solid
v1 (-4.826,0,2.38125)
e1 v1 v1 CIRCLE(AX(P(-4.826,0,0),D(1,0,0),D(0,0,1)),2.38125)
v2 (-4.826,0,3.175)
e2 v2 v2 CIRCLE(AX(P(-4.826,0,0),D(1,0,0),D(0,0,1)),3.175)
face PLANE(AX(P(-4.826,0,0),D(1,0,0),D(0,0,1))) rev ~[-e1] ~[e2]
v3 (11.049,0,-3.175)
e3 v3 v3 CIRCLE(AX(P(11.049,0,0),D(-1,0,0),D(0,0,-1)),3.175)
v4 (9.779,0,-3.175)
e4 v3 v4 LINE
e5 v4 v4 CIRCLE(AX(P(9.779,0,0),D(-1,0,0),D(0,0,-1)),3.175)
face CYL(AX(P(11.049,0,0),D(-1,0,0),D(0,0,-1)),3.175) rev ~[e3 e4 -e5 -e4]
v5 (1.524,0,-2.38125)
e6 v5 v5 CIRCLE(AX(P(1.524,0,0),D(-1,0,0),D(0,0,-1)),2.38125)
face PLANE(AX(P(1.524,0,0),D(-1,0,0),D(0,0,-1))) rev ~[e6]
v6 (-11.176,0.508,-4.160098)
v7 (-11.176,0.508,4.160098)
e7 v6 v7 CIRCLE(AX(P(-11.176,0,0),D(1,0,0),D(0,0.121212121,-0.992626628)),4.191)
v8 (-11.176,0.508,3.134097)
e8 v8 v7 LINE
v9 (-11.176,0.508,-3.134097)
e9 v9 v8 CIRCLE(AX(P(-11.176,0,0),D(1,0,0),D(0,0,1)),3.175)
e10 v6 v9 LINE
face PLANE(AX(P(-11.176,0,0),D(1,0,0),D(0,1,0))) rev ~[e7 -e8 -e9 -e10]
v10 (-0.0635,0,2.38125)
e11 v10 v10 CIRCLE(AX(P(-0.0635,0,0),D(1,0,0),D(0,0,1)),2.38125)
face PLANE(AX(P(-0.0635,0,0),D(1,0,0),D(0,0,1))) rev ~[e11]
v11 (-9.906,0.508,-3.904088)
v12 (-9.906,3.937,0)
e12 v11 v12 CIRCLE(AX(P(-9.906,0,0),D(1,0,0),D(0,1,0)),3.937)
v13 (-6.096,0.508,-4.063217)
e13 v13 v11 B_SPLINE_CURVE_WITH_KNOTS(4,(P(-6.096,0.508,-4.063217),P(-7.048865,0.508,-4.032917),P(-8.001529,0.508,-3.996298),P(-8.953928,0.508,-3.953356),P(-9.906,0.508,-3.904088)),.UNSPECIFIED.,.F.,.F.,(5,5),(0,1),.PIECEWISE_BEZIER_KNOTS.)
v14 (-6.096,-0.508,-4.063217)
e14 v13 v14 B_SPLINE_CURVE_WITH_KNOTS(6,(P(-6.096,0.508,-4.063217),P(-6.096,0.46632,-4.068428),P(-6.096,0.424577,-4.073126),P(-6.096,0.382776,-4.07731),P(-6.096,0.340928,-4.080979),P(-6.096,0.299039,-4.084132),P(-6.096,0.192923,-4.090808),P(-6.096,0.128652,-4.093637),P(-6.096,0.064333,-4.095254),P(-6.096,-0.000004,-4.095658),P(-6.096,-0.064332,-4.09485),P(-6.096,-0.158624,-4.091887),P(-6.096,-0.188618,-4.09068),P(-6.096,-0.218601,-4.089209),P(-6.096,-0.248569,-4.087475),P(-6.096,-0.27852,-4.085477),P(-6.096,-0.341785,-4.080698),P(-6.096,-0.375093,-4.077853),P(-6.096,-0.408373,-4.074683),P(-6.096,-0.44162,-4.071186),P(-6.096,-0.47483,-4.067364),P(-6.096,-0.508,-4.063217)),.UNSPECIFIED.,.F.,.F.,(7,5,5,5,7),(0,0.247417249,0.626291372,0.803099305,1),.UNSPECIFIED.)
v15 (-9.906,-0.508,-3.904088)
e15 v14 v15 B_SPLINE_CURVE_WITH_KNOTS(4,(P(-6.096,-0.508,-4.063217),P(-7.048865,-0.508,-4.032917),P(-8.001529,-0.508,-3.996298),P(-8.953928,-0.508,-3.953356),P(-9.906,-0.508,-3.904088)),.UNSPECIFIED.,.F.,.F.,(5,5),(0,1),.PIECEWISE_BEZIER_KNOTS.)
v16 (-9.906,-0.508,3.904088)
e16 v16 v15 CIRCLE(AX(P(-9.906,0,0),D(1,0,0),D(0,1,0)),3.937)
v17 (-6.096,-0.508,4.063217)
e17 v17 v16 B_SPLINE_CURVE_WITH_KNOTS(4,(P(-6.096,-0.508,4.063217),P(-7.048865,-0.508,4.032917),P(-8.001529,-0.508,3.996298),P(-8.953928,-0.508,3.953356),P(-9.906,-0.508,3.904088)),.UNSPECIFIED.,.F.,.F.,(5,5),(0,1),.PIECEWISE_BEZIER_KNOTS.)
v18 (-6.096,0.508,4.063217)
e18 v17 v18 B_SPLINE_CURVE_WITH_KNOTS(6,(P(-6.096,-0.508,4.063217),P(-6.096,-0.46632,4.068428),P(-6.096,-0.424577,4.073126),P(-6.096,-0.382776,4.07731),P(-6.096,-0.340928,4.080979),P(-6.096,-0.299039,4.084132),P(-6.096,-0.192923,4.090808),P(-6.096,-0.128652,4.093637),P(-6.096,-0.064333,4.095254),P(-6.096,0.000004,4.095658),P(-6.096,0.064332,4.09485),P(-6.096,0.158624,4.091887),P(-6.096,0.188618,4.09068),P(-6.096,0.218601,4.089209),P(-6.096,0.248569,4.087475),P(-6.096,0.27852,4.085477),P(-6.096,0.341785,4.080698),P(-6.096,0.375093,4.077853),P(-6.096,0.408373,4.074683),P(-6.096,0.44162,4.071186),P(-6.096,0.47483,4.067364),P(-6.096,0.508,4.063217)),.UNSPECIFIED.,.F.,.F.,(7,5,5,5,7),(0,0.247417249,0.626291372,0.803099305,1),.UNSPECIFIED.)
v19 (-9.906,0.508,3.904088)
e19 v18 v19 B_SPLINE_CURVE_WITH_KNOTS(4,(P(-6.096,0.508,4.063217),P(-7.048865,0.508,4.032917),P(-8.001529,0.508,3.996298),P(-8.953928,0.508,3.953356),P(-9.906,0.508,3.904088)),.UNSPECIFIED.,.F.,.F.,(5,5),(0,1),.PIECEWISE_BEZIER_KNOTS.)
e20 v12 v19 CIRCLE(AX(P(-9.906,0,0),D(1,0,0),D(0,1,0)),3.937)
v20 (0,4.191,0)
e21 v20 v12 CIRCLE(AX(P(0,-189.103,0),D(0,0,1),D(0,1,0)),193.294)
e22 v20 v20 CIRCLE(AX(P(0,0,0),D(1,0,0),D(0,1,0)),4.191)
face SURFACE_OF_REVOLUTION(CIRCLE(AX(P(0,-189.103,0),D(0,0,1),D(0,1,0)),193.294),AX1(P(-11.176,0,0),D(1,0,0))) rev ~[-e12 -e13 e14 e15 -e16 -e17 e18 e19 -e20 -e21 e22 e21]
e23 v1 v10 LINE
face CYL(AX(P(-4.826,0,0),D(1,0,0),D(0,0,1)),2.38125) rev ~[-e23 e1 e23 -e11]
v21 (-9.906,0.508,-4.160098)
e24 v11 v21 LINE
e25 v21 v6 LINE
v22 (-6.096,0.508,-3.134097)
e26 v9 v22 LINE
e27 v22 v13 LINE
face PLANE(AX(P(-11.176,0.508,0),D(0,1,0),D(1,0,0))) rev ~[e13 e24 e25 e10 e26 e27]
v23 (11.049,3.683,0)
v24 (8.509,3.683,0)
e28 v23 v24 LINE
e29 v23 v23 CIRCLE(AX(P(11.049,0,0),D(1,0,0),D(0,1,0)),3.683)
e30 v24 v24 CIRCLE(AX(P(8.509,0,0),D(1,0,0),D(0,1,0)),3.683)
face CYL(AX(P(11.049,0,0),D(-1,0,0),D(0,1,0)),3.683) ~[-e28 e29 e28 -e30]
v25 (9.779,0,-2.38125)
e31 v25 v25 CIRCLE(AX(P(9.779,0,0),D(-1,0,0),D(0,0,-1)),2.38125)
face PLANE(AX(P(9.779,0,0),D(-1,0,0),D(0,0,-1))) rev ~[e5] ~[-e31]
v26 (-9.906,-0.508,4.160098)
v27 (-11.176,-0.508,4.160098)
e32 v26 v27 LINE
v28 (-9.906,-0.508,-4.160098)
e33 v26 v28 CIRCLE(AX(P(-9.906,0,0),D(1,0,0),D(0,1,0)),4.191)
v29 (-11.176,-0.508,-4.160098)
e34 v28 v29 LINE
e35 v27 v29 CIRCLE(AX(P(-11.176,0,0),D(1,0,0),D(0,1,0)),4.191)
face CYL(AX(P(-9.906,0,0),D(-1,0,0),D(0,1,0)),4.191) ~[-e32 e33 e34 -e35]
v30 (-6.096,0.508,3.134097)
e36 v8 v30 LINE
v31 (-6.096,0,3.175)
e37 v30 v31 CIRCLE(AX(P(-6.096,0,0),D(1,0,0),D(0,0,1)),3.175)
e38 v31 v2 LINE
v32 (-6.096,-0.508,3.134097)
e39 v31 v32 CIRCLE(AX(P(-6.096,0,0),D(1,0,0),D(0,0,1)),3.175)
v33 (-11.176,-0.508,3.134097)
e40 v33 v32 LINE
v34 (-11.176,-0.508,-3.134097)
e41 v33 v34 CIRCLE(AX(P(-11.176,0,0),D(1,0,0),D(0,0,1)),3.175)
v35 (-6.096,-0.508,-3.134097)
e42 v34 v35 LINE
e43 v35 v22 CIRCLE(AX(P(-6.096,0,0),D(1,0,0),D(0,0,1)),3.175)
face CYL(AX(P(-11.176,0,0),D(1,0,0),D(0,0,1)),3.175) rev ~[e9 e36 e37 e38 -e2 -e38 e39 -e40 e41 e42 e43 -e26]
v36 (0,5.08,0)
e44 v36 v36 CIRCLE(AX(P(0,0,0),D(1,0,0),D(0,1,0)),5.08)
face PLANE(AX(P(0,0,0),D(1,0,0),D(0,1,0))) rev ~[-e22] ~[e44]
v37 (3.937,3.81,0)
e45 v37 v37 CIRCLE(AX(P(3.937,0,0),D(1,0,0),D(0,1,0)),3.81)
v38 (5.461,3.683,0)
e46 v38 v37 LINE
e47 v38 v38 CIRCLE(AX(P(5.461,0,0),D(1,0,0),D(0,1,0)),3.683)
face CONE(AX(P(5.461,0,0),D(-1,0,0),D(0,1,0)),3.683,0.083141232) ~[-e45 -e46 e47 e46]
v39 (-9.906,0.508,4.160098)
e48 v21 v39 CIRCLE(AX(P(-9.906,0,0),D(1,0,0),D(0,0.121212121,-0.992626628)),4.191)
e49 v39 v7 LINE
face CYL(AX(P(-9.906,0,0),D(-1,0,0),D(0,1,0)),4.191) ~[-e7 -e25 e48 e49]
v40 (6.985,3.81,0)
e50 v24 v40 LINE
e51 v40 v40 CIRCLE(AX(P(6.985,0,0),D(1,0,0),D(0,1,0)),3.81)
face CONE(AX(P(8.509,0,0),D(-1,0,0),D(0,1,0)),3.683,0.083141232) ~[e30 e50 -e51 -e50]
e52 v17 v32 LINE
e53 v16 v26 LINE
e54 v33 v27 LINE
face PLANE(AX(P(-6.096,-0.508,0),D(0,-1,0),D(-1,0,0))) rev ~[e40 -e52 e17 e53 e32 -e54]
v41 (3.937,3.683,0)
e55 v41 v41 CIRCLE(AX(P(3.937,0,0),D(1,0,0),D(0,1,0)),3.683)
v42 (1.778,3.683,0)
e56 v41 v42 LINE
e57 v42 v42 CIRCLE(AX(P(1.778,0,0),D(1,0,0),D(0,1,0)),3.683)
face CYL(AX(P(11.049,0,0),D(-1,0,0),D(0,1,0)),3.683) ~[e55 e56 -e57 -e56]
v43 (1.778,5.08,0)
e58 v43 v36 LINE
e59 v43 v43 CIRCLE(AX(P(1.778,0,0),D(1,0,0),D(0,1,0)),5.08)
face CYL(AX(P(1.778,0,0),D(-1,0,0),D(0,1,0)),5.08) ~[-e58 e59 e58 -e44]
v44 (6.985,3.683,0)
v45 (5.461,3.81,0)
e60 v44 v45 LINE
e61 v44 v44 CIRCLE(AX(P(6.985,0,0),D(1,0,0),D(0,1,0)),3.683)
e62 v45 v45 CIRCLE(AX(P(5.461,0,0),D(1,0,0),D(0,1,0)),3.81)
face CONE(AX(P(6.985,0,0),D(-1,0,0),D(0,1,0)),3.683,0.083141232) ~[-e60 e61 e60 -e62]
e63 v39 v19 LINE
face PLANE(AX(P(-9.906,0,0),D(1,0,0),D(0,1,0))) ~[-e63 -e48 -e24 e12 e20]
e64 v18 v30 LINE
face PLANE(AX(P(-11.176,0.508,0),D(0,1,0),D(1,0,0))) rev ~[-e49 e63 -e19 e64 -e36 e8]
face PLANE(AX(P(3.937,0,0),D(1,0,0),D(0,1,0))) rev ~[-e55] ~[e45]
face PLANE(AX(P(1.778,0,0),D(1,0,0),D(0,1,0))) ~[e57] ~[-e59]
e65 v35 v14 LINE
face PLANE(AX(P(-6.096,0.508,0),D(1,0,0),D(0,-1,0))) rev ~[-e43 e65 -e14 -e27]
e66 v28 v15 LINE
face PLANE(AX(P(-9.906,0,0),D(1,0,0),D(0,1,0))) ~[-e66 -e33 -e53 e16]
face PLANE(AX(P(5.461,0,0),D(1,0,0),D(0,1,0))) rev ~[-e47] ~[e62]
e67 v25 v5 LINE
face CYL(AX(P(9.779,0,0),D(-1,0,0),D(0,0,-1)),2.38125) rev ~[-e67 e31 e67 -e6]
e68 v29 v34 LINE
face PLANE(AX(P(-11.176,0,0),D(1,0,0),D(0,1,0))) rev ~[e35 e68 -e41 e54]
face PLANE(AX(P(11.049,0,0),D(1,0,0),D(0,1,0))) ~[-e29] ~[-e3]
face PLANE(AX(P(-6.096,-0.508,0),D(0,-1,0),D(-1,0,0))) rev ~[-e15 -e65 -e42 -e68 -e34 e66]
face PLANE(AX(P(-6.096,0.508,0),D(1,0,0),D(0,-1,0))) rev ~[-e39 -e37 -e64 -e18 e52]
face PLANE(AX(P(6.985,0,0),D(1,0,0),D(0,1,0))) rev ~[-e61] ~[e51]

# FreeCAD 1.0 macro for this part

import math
import FreeCAD as App
import Part
import Sketcher
from FreeCAD import Vector
Q = App.Units.Quantity

doc = App.newDocument("Part")
body = doc.addObject("PartDesign::Body", "Body")

# Sketch on XY plane
sketch1 = body.newObject("Sketcher::SketchObject", "Sketch")
sketch1.AttachmentSupport = (doc.getObject("XY_Plane"), [""])
sketch1.MapMode = "FlatFace"
sketch1.addGeometry(Part.LineSegment(Vector(0, 5.08, 0), Vector(0, 4.191, 0)), False)
sketch1.addGeometry(Part.ArcOfCircle(Part.Circle(Vector(0, -189.103, 0), Vector(0, 0, 1), 193.294), math.radians(90), math.radians(92.937601)), False)
sketch1.addGeometry(Part.LineSegment(Vector(-9.906, 3.937, 0), Vector(-9.906, 4.191, 0)), False)
sketch1.addGeometry(Part.LineSegment(Vector(-9.906, 4.191, 0), Vector(-11.176, 4.191, 0)), False)
sketch1.addGeometry(Part.LineSegment(Vector(-11.176, 4.191, 0), Vector(-11.176, 0, 0)), False)
sketch1.addGeometry(Part.LineSegment(Vector(-11.176, 0, 0), Vector(11.049, 0, 0)), False)
sketch1.addGeometry(Part.LineSegment(Vector(11.049, 0, 0), Vector(11.049, 3.683, 0)), False)
sketch1.addGeometry(Part.LineSegment(Vector(11.049, 3.683, 0), Vector(8.509, 3.683, 0)), False)
sketch1.addGeometry(Part.LineSegment(Vector(8.509, 3.683, 0), Vector(6.985, 3.81, 0)), False)
sketch1.addGeometry(Part.LineSegment(Vector(6.985, 3.81, 0), Vector(6.985, 3.683, 0)), False)
sketch1.addGeometry(Part.LineSegment(Vector(6.985, 3.683, 0), Vector(5.461, 3.81, 0)), False)
sketch1.addGeometry(Part.LineSegment(Vector(5.461, 3.81, 0), Vector(5.461, 3.683, 0)), False)
sketch1.addGeometry(Part.LineSegment(Vector(5.461, 3.683, 0), Vector(3.937, 3.81, 0)), False)
sketch1.addGeometry(Part.LineSegment(Vector(3.937, 3.81, 0), Vector(3.937, 3.683, 0)), False)
sketch1.addGeometry(Part.LineSegment(Vector(3.937, 3.683, 0), Vector(1.778, 3.683, 0)), False)
sketch1.addGeometry(Part.LineSegment(Vector(1.778, 3.683, 0), Vector(1.778, 5.08, 0)), False)
sketch1.addGeometry(Part.LineSegment(Vector(1.778, 5.08, 0), Vector(0, 5.08, 0)), False)
sketch1.addConstraint(Sketcher.Constraint("Coincident", 0, 2, 1, 1))
sketch1.addConstraint(Sketcher.Constraint("Coincident", 1, 2, 2, 1))
sketch1.addConstraint(Sketcher.Constraint("Coincident", 2, 2, 3, 1))
sketch1.addConstraint(Sketcher.Constraint("Coincident", 3, 2, 4, 1))
sketch1.addConstraint(Sketcher.Constraint("Coincident", 4, 2, 5, 1))
sketch1.addConstraint(Sketcher.Constraint("Coincident", 5, 2, 6, 1))
sketch1.addConstraint(Sketcher.Constraint("Coincident", 6, 2, 7, 1))
sketch1.addConstraint(Sketcher.Constraint("Coincident", 7, 2, 8, 1))
sketch1.addConstraint(Sketcher.Constraint("Coincident", 8, 2, 9, 1))
sketch1.addConstraint(Sketcher.Constraint("Coincident", 9, 2, 10, 1))
sketch1.addConstraint(Sketcher.Constraint("Coincident", 10, 2, 11, 1))
sketch1.addConstraint(Sketcher.Constraint("Coincident", 11, 2, 12, 1))
sketch1.addConstraint(Sketcher.Constraint("Coincident", 12, 2, 13, 1))
sketch1.addConstraint(Sketcher.Constraint("Coincident", 13, 2, 14, 1))
sketch1.addConstraint(Sketcher.Constraint("Coincident", 14, 2, 15, 1))
sketch1.addConstraint(Sketcher.Constraint("Coincident", 15, 2, 16, 1))
sketch1.addConstraint(Sketcher.Constraint("Coincident", 16, 2, 0, 1))
sketch1.addConstraint(Sketcher.Constraint("Vertical", 0))
sketch1.addConstraint(Sketcher.Constraint("Vertical", 2))
sketch1.addConstraint(Sketcher.Constraint("Horizontal", 3))
sketch1.addConstraint(Sketcher.Constraint("Vertical", 4))
sketch1.addConstraint(Sketcher.Constraint("Horizontal", 5))
sketch1.addConstraint(Sketcher.Constraint("Vertical", 6))
sketch1.addConstraint(Sketcher.Constraint("Horizontal", 7))
sketch1.addConstraint(Sketcher.Constraint("Vertical", 9))
sketch1.addConstraint(Sketcher.Constraint("Vertical", 11))
sketch1.addConstraint(Sketcher.Constraint("Vertical", 13))
sketch1.addConstraint(Sketcher.Constraint("Horizontal", 14))
sketch1.addConstraint(Sketcher.Constraint("Vertical", 15))
sketch1.addConstraint(Sketcher.Constraint("Horizontal", 16))
sketch1.addConstraint(Sketcher.Constraint("PointOnObject", 1, 3, -2))
sketch1.addConstraint(Sketcher.Constraint("PointOnObject", 0, 2, -2))
sketch1.addConstraint(Sketcher.Constraint("PointOnObject", 4, 2, -1))
sketch1.addConstraint(Sketcher.Constraint("Parallel", 8, 10))
sketch1.addConstraint(Sketcher.Constraint("Parallel", 10, 12))
sketch1.addConstraint(Sketcher.Constraint("Horizontal", 0, 2, 2, 2))
sketch1.addConstraint(Sketcher.Constraint("Horizontal", 7, 2, 9, 2))
sketch1.addConstraint(Sketcher.Constraint("Horizontal", 8, 2, 10, 2))
sketch1.addConstraint(Sketcher.Constraint("Horizontal", 9, 2, 11, 2))
sketch1.addConstraint(Sketcher.Constraint("Horizontal", 10, 2, 12, 2))
sketch1.addConstraint(Sketcher.Constraint("Horizontal", 11, 2, 13, 2))
sketch1.addConstraint(Sketcher.Constraint("DistanceX", 7, 2, 7, 1, Q("0.1 in")))
sketch1.addConstraint(Sketcher.Constraint("DistanceX", 3, 2, 3, 1, Q("0.05 in")))
sketch1.addConstraint(Sketcher.Constraint("DistanceX", 16, 2, 16, 1, Q("0.07 in")))
sketch1.addConstraint(Sketcher.Constraint("DistanceX", 3, 2, -1, 1, Q("0.44 in")))
sketch1.addConstraint(Sketcher.Constraint("Radius", 1, Q("7.61 in")))
sketch1.addConstraint(Sketcher.Constraint("DistanceX", 8, 2, 7, 2, Q("0.06 in")))
sketch1.addConstraint(Sketcher.Constraint("DistanceY", 12, 2, 15, 2, Q("0.05 in")))
sketch1.addConstraint(Sketcher.Constraint("DistanceY", -1, 1, 15, 2, Q("0.2 in")))
sketch1.addConstraint(Sketcher.Constraint("DistanceX", 5, 1, 5, 2, Q("0.875 in")))
sketch1.addConstraint(Sketcher.Constraint("DistanceY", 0, 2, 0, 1, Q("0.035 in")))
sketch1.addConstraint(Sketcher.Constraint("DistanceY", 6, 1, 6, 2, Q("0.145 in")))
revolution = body.newObject("PartDesign::Revolution", "Revolution")
revolution.Profile = sketch1
revolution.ReferenceAxis = (sketch1, ["H_Axis"])
revolution.Angle = 360

# Sketch on XY plane
sketch2 = body.newObject("Sketcher::SketchObject", "Sketch001")
sketch2.AttachmentSupport = (doc.getObject("XY_Plane"), [""])
sketch2.MapMode = "FlatFace"
sketch2.addGeometry(Part.LineSegment(Vector(-6.096, 0.508, 0), Vector(-11.176, 0.508, 0)), False)
sketch2.addGeometry(Part.LineSegment(Vector(-11.176, 0.508, 0), Vector(-11.176, -0.508, 0)), False)
sketch2.addGeometry(Part.LineSegment(Vector(-11.176, -0.508, 0), Vector(-6.096, -0.508, 0)), False)
sketch2.addGeometry(Part.LineSegment(Vector(-6.096, -0.508, 0), Vector(-6.096, 0.508, 0)), False)
sketch2.addConstraint(Sketcher.Constraint("Coincident", 0, 2, 1, 1))
sketch2.addConstraint(Sketcher.Constraint("Coincident", 1, 2, 2, 1))
sketch2.addConstraint(Sketcher.Constraint("Coincident", 2, 2, 3, 1))
sketch2.addConstraint(Sketcher.Constraint("Coincident", 3, 2, 0, 1))
sketch2.addConstraint(Sketcher.Constraint("Horizontal", 0))
sketch2.addConstraint(Sketcher.Constraint("Vertical", 1))
sketch2.addConstraint(Sketcher.Constraint("Horizontal", 2))
sketch2.addConstraint(Sketcher.Constraint("Vertical", 3))
sketch2.addConstraint(Sketcher.Constraint("DistanceX", 0, 2, 0, 1, Q("0.2 in")))
sketch2.addConstraint(Sketcher.Constraint("DistanceY", 1, 2, 1, 1, Q("0.04 in")))
sketch2.addConstraint(Sketcher.Constraint("DistanceX", 0, 2, -1, 1, Q("0.44 in")))
sketch2.addConstraint(Sketcher.Constraint("DistanceY", -1, 1, 0, 2, Q("0.02 in")))
pocket1 = body.newObject("PartDesign::Pocket", "Pocket")
pocket1.Profile = sketch2
pocket1.Type = "ThroughAll"
pocket1.Midplane = True

# Sketch on YZ plane
sketch3 = body.newObject("Sketcher::SketchObject", "Sketch002")
sketch3.AttachmentSupport = (doc.getObject("YZ_Plane"), [""])
sketch3.MapMode = "FlatFace"
sketch3.AttachmentOffset = App.Placement(Vector(0, 0, -0.44 * 25.4), App.Rotation())
sketch3.addGeometry(Part.Circle(Vector(0, 0, 0), Vector(0, 0, 1), 2.38125), False)
sketch3.addConstraint(Sketcher.Constraint("Coincident", 0, 3, -1, 1))
sketch3.addConstraint(Sketcher.Constraint("Diameter", 0, Q("0.1875 in")))
doc.recompute()
hole = body.newObject("PartDesign::Hole", "Hole")
hole.Profile = sketch3
hole.ThreadType = "None"
hole.Diameter = Q("0.1875 in")
hole.DepthType = "Dimension"
hole.Depth = Q("0.4375 in")
hole.DrillPoint = "Flat"
hole.HoleCutType = "Counterbore"
hole.HoleCutDiameter = Q("0.25 in")
hole.HoleCutDepth = Q("0.25 in")
hole.Reversed = True

# Sketch on YZ plane
sketch4 = body.newObject("Sketcher::SketchObject", "Sketch003")
sketch4.AttachmentSupport = (doc.getObject("YZ_Plane"), [""])
sketch4.MapMode = "FlatFace"
sketch4.AttachmentOffset = App.Placement(Vector(0, 0, 0.435 * 25.4), App.Rotation())
sketch4.addGeometry(Part.Circle(Vector(0, 0, 0), Vector(0, 0, 1), 2.38125), False)
sketch4.addConstraint(Sketcher.Constraint("Coincident", 0, 3, -1, 1))
sketch4.addConstraint(Sketcher.Constraint("Diameter", 0, Q("0.1875 in")))
doc.recompute()
hole2 = body.newObject("PartDesign::Hole", "Hole001")
hole2.Profile = sketch4
hole2.ThreadType = "None"
hole2.Diameter = Q("0.1875 in")
hole2.DepthType = "Dimension"
hole2.Depth = Q("0.375 in")
hole2.DrillPoint = "Flat"
hole2.HoleCutType = "Counterbore"
hole2.HoleCutDiameter = Q("0.25 in")
hole2.HoleCutDepth = Q("0.05 in")

doc.recompute()
